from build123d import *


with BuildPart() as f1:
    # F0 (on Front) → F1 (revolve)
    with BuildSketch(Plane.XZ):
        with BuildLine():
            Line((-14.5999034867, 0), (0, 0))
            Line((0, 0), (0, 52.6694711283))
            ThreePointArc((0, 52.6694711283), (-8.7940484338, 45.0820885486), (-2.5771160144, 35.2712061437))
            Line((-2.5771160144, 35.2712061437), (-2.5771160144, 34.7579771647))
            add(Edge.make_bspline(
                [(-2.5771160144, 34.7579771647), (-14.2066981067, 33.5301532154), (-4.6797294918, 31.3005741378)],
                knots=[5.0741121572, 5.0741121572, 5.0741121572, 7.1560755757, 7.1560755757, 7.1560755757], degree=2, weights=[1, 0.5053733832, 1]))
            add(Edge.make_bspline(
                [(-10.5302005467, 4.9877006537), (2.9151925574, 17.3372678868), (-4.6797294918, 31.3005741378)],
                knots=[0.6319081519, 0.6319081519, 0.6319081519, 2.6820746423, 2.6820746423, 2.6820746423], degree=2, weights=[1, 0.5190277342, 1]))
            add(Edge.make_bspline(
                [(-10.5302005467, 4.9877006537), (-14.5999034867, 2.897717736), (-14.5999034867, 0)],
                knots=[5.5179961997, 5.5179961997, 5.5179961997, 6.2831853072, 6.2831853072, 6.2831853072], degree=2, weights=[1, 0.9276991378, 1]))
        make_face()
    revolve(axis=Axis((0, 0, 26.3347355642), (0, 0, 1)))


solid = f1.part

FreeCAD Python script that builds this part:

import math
import FreeCAD as App
import Part
import Sketcher
from FreeCAD import Vector
Q = App.Units.Quantity

doc = App.newDocument("Part")
body = doc.addObject("PartDesign::Body", "Body")

# Sketch on XZ plane
sketch1 = doc.addObject("Sketcher::SketchObject", "Sketch")
body.addObject(sketch1)
sketch1.AttachmentSupport = (doc.XZ_Plane, [""])
sketch1.MapMode = "FlatFace"
sketch1.addGeometry(Part.LineSegment(Vector(-14.599903, 0, 0), Vector(0, 0, 0)), False)
sketch1.addGeometry(Part.LineSegment(Vector(0, 0, 0), Vector(0, 52.669471, 0)), False)
sketch1.addGeometry(Part.ArcOfCircle(Part.Circle(Vector(0, 43.779471, 0), Vector(0, 0, 1), 8.89), math.radians(90), math.radians(253.14867)), False)
sketch1.addGeometry(Part.LineSegment(Vector(-2.577116, 35.271206, 0), Vector(-2.577116, 34.757977, 0)), False)
sketch1.addGeometry(Part.BSplineCurve([Vector(-2.577116, 34.757977, 0), Vector(-14.206698, 33.530153, 0), Vector(-4.679729, 31.300574, 0)], [3, 3], [5.074112157, 7.156075576], False, 2, [1, 0.505373383, 1], False), False)
sketch1.addGeometry(Part.BSplineCurve([Vector(-10.530201, 4.987701, 0), Vector(2.915193, 17.337268, 0), Vector(-4.679729, 31.300574, 0)], [3, 3], [0.631908152, 2.682074642], False, 2, [1, 0.519027734, 1], False), False)
sketch1.addGeometry(Part.BSplineCurve([Vector(-10.530201, 4.987701, 0), Vector(-14.599903, 2.897718, 0), Vector(-14.599903, 0, 0)], [3, 3], [5.5179962, 6.283185307], False, 2, [1, 0.927699138, 1], False), False)
sketch1.addConstraint(Sketcher.Constraint("Block", 4))
sketch1.addConstraint(Sketcher.Constraint("Block", 5))
sketch1.addConstraint(Sketcher.Constraint("Block", 6))
sketch1.addConstraint(Sketcher.Constraint("Coincident", 0, 2, 1, 1))
sketch1.addConstraint(Sketcher.Constraint("Coincident", 1, 2, 2, 1))
sketch1.addConstraint(Sketcher.Constraint("Coincident", 2, 2, 3, 1))
sketch1.addConstraint(Sketcher.Constraint("Coincident", 3, 2, 4, 1))
sketch1.addConstraint(Sketcher.Constraint("Coincident", 6, 2, 0, 1))
sketch1.addConstraint(Sketcher.Constraint("Horizontal", 0))
sketch1.addConstraint(Sketcher.Constraint("Vertical", 1))
sketch1.addConstraint(Sketcher.Constraint("Vertical", 3))
sketch1.addConstraint(Sketcher.Constraint("PointOnObject", 2, 3, -2))
sketch1.addConstraint(Sketcher.Constraint("PointOnObject", 1, 2, -2))
sketch1.addConstraint(Sketcher.Constraint("Radius", 2, Q("0.35 in")))
sketch1.addConstraint(Sketcher.Constraint("DistanceY", 1, 1, 1, 2, Q("52.669471 mm")))
revolution = doc.addObject("PartDesign::Revolution", "Revolution")
body.addObject(revolution)
revolution.Profile = sketch1
revolution.ReferenceAxis = (sketch1, ["V_Axis"])
revolution.Angle = 360

doc.recompute()
